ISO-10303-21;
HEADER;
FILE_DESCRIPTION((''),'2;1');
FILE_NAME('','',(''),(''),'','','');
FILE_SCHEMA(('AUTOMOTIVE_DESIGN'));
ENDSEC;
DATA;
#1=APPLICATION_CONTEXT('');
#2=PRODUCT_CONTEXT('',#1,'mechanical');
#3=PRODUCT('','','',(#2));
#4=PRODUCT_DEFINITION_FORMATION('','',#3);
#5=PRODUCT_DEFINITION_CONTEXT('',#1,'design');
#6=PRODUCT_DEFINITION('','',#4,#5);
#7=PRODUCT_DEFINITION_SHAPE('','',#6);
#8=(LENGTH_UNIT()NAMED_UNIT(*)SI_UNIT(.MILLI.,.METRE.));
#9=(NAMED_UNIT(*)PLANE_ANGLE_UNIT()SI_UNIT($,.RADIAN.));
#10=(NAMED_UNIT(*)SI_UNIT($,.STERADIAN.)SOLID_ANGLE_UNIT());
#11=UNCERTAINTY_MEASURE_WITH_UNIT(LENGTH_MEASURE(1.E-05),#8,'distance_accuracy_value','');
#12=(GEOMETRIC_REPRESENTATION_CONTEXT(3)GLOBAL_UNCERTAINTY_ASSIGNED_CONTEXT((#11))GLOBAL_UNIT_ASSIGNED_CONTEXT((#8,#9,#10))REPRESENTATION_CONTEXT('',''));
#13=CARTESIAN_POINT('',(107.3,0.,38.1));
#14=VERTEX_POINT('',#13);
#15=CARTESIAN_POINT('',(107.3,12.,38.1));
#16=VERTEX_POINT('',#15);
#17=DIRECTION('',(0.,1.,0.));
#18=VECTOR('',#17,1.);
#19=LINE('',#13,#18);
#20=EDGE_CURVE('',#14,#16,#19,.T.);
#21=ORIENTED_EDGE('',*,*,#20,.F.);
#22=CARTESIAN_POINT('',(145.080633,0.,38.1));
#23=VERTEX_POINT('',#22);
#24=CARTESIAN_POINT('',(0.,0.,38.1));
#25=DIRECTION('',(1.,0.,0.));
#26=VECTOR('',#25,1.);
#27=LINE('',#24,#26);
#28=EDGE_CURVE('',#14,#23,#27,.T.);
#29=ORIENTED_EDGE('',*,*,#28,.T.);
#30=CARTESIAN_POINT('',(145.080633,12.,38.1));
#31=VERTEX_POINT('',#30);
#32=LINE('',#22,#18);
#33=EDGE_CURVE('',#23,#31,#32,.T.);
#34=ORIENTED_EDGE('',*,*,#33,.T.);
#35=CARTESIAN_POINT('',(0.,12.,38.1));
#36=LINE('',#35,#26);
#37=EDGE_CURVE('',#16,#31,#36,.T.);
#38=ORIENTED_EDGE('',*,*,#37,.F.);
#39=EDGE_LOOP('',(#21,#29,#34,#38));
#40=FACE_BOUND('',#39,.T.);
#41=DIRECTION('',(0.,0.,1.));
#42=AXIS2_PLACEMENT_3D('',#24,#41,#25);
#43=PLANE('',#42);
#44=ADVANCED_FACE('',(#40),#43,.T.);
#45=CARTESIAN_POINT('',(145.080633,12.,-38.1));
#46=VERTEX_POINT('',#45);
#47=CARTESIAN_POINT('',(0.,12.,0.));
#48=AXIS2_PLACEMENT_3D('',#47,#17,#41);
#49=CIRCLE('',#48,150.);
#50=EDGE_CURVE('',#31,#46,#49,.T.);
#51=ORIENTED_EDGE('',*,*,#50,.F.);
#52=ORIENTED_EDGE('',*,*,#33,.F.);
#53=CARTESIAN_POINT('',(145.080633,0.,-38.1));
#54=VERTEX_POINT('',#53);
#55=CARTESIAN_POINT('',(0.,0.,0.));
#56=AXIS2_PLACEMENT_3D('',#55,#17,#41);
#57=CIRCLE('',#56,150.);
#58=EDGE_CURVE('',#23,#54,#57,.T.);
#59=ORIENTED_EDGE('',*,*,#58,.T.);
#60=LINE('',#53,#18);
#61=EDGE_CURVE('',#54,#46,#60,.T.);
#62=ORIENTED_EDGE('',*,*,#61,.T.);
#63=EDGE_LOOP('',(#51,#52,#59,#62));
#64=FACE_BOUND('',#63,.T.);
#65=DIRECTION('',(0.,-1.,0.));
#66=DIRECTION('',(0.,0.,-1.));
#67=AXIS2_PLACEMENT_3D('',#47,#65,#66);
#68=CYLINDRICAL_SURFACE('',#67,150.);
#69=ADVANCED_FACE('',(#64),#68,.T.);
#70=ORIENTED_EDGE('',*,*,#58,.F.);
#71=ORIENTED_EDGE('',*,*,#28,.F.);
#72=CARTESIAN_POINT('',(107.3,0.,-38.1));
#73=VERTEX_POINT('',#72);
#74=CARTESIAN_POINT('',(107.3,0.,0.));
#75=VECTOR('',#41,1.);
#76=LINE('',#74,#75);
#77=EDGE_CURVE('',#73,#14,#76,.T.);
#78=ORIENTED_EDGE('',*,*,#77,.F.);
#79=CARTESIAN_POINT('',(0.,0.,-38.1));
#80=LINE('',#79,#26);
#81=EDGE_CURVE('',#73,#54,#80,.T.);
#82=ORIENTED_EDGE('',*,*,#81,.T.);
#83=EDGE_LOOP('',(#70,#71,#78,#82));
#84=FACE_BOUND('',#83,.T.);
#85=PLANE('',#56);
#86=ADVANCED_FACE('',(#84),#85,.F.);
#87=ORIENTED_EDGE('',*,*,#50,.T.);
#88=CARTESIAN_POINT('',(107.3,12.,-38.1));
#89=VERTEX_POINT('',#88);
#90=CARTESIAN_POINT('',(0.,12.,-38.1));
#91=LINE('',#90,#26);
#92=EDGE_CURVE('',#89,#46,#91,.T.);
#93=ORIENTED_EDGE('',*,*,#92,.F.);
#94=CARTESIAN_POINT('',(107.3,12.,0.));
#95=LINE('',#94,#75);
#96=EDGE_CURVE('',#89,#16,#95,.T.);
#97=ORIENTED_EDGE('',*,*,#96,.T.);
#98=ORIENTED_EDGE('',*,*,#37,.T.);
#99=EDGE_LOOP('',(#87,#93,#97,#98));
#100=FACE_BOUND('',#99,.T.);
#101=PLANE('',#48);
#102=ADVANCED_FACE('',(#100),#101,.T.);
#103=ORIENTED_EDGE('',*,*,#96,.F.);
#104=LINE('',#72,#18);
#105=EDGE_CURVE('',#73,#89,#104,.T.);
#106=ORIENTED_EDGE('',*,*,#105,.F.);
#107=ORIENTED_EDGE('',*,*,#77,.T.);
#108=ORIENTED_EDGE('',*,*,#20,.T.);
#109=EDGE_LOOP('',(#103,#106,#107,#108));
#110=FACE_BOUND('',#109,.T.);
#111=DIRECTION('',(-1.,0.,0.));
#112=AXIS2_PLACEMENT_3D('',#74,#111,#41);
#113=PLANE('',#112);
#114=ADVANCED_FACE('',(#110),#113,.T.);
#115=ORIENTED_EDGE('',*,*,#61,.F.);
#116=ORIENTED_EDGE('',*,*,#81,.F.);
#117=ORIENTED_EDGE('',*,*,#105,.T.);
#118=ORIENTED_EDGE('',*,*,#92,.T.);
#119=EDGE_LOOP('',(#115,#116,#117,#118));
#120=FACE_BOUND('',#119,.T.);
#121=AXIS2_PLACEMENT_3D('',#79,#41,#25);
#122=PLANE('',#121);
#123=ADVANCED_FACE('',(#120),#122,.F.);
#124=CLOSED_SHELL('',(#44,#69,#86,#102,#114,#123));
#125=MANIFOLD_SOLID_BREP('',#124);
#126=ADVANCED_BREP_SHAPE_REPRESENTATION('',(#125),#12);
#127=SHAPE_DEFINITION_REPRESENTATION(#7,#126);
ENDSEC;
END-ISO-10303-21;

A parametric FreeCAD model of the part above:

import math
import FreeCAD as App
import Part
import Sketcher

V = App.Vector
Q = App.Units.Quantity

doc = App.newDocument("Part")
body = doc.addObject("PartDesign::Body", "Body")

sketch1 = body.newObject("Sketcher::SketchObject", "Sketch")
sketch1.AttachmentSupport = (doc.getObject("XZ_Plane"), [""])
sketch1.MapMode = "FlatFace"
sketch1.addGeometry(Part.LineSegment(V(130, -75, 0), V(67, -39, 0)), False)
sketch1.addGeometry(Part.ArcOfCircle(Part.Circle(V(62, -47, 0), V(0, 0, 1), 10), math.radians(60), math.radians(90)), False)
sketch1.addGeometry(Part.LineSegment(V(62, -38, 0), V(-45, -38, 0)), False)
sketch1.addGeometry(Part.ArcOfCircle(Part.Circle(V(-45, -28, 0), V(0, 0, 1), 10), math.radians(180), math.radians(270)), False)
sketch1.addGeometry(Part.LineSegment(V(-55, -28, 0), V(-55, 28, 0)), False)
sketch1.addGeometry(Part.ArcOfCircle(Part.Circle(V(-45, 28, 0), V(0, 0, 1), 10), math.radians(90), math.radians(180)), False)
sketch1.addGeometry(Part.LineSegment(V(-45, 38, 0), V(62, 38, 0)), False)
sketch1.addGeometry(Part.ArcOfCircle(Part.Circle(V(62, 47, 0), V(0, 0, 1), 10), math.radians(-90), math.radians(-60)), False)
sketch1.addGeometry(Part.LineSegment(V(67, 39, 0), V(130, 75, 0)), False)
sketch1.addGeometry(Part.ArcOfCircle(Part.Circle(V(0, 0, 0), V(0, 0, 1), 150), math.radians(-30), math.radians(30)), False)
sketch1.addGeometry(Part.Circle(V(50, 0, 0), V(0, 0, 1), 5), False)
sketch1.addGeometry(Part.Circle(V(30, 0, 0), V(0, 0, 1), 5), False)
sketch1.addGeometry(Part.Circle(V(0, 0, 0), V(0, 0, 1), 15), False)
sketch1.addGeometry(Part.Circle(V(-30, 0, 0), V(0, 0, 1), 5), False)
sketch1.addConstraint(Sketcher.Constraint("Tangent", 0, 2, 1, 1))
sketch1.addConstraint(Sketcher.Constraint("Tangent", 1, 2, 2, 1))
sketch1.addConstraint(Sketcher.Constraint("Tangent", 2, 2, 3, 2))
sketch1.addConstraint(Sketcher.Constraint("Tangent", 3, 1, 4, 1))
sketch1.addConstraint(Sketcher.Constraint("Tangent", 4, 2, 5, 2))
sketch1.addConstraint(Sketcher.Constraint("Tangent", 5, 1, 6, 1))
sketch1.addConstraint(Sketcher.Constraint("Tangent", 6, 2, 7, 1))
sketch1.addConstraint(Sketcher.Constraint("Tangent", 7, 2, 8, 1))
sketch1.addConstraint(Sketcher.Constraint("Coincident", 8, 2, 9, 2))
sketch1.addConstraint(Sketcher.Constraint("Coincident", 9, 1, 0, 1))
sketch1.addConstraint(Sketcher.Constraint("Horizontal", 2))
sketch1.addConstraint(Sketcher.Constraint("Vertical", 4))
sketch1.addConstraint(Sketcher.Constraint("Horizontal", 6))
sketch1.addConstraint(Sketcher.Constraint("Coincident", 9, 3, -1, 1))
sketch1.addConstraint(Sketcher.Constraint("Coincident", 12, 3, -1, 1))
sketch1.addConstraint(Sketcher.Constraint("Equal", 1, 3))
sketch1.addConstraint(Sketcher.Constraint("Equal", 3, 5))
sketch1.addConstraint(Sketcher.Constraint("Equal", 5, 7))
sketch1.addConstraint(Sketcher.Constraint("Equal", 10, 11))
sketch1.addConstraint(Sketcher.Constraint("Equal", 11, 13))
sketch1.addConstraint(Sketcher.Constraint("Symmetric", 11, 3, 13, 3, -1, 1))
sketch1.addConstraint(Sketcher.Constraint("Symmetric", 1, 3, 7, 3, -1))
sketch1.addConstraint(Sketcher.Constraint("PointOnObject", 10, 3, -1))
sketch1.addConstraint(Sketcher.Constraint("PointOnObject", 11, 3, -1))
sketch1.addConstraint(Sketcher.Constraint("Vertical", 0, 2, 7, 2))
sketch1.addConstraint(Sketcher.Constraint("Diameter", 10, Q("10 mm")))
sketch1.addConstraint(Sketcher.Constraint("Diameter", 12, Q("30 mm")))
sketch1.addConstraint(Sketcher.Constraint("Radius", 1, Q("10 mm")))
sketch1.addConstraint(Sketcher.Constraint("Radius", 9, Q("150 mm")))
sketch1.addConstraint(Sketcher.Constraint("DistanceY", 4, 1, 4, 2, Q("55 mm")))
sketch1.addConstraint(Sketcher.Constraint("Angle", 0, Q("150 deg")))
sketch1.addConstraint(Sketcher.Constraint("DistanceX", -1, 1, 10, 3, Q("50 mm")))
sketch1.addConstraint(Sketcher.Constraint("DistanceX", -1, 1, 11, 3, Q("30 mm")))
sketch1.addConstraint(Sketcher.Constraint("DistanceY", -1, 1, 8, 2, Q("75 mm")))
sketch1.addConstraint(Sketcher.Constraint("DistanceX", 2, 2, 2, 1, Q("107.320508 mm")))
pad1 = body.newObject("PartDesign::Pad", "Pad")
pad1.Profile = sketch1
pad1.Length = 12
pad1.Reversed = True

sketch2 = body.newObject("Sketcher::SketchObject", "Sketch001")
sketch2.AttachmentSupport = (doc.getObject("XZ_Plane"), [""])
sketch2.MapMode = "FlatFace"
sketch2.AttachmentOffset = App.Placement(V(0, 0, -12), App.Rotation())
sketch2.addGeometry(Part.LineSegment(V(107, 38, 0), V(107, -38, 0)), False)
sketch2.addGeometry(Part.LineSegment(V(107, -38, 0), V(145, -38, 0)), False)
sketch2.addGeometry(Part.ArcOfCircle(Part.Circle(V(0, 0, 0), V(0, 0, 1), 150), math.radians(-30), math.radians(-14.71)), False)
sketch2.addGeometry(Part.LineSegment(V(130, -75, 0), V(67, -39, 0)), False)
sketch2.addGeometry(Part.ArcOfCircle(Part.Circle(V(62, -47, 0), V(0, 0, 1), 10), math.radians(60), math.radians(90)), False)
sketch2.addGeometry(Part.LineSegment(V(62, -38, 0), V(-45, -38, 0)), False)
sketch2.addGeometry(Part.ArcOfCircle(Part.Circle(V(-45, -28, 0), V(0, 0, 1), 10), math.radians(180), math.radians(270)), False)
sketch2.addGeometry(Part.LineSegment(V(-55, -28, 0), V(-55, 28, 0)), False)
sketch2.addGeometry(Part.ArcOfCircle(Part.Circle(V(-45, 28, 0), V(0, 0, 1), 10), math.radians(90), math.radians(180)), False)
sketch2.addGeometry(Part.LineSegment(V(-45, 38, 0), V(62, 38, 0)), False)
sketch2.addGeometry(Part.ArcOfCircle(Part.Circle(V(62, 47, 0), V(0, 0, 1), 10), math.radians(-90), math.radians(-60)), False)
sketch2.addGeometry(Part.LineSegment(V(67, 39, 0), V(130, 75, 0)), False)
sketch2.addGeometry(Part.ArcOfCircle(Part.Circle(V(0, 0, 0), V(0, 0, 1), 150), math.radians(14.71), math.radians(30)), False)
sketch2.addGeometry(Part.LineSegment(V(145, 38, 0), V(107, 38, 0)), False)
sketch2.addGeometry(Part.Circle(V(-30, 0, 0), V(0, 0, 1), 5), False)
sketch2.addGeometry(Part.Circle(V(0, 0, 0), V(0, 0, 1), 15), False)
sketch2.addGeometry(Part.Circle(V(30, 0, 0), V(0, 0, 1), 5), False)
sketch2.addGeometry(Part.Circle(V(50, 0, 0), V(0, 0, 1), 5), False)
sketch2.addConstraint(Sketcher.Constraint("Coincident", 0, 2, 1, 1))
sketch2.addConstraint(Sketcher.Constraint("Coincident", 1, 2, 2, 2))
sketch2.addConstraint(Sketcher.Constraint("Coincident", 2, 1, 3, 1))
sketch2.addConstraint(Sketcher.Constraint("Tangent", 3, 2, 4, 1))
sketch2.addConstraint(Sketcher.Constraint("Tangent", 4, 2, 5, 1))
sketch2.addConstraint(Sketcher.Constraint("Tangent", 5, 2, 6, 2))
sketch2.addConstraint(Sketcher.Constraint("Tangent", 6, 1, 7, 1))
sketch2.addConstraint(Sketcher.Constraint("Tangent", 7, 2, 8, 2))
sketch2.addConstraint(Sketcher.Constraint("Tangent", 8, 1, 9, 1))
sketch2.addConstraint(Sketcher.Constraint("Tangent", 9, 2, 10, 1))
sketch2.addConstraint(Sketcher.Constraint("Tangent", 10, 2, 11, 1))
sketch2.addConstraint(Sketcher.Constraint("Coincident", 11, 2, 12, 2))
sketch2.addConstraint(Sketcher.Constraint("Coincident", 12, 1, 13, 1))
sketch2.addConstraint(Sketcher.Constraint("Coincident", 13, 2, 0, 1))
sketch2.addConstraint(Sketcher.Constraint("Vertical", 0))
sketch2.addConstraint(Sketcher.Constraint("Horizontal", 1))
sketch2.addConstraint(Sketcher.Constraint("Horizontal", 5))
sketch2.addConstraint(Sketcher.Constraint("Vertical", 7))
sketch2.addConstraint(Sketcher.Constraint("Horizontal", 9))
sketch2.addConstraint(Sketcher.Constraint("Horizontal", 13))
sketch2.addConstraint(Sketcher.Constraint("Coincident", 2, 3, -1, 1))
sketch2.addConstraint(Sketcher.Constraint("Coincident", 12, 3, -1, 1))
sketch2.addConstraint(Sketcher.Constraint("Coincident", 15, 3, -1, 1))
sketch2.addConstraint(Sketcher.Constraint("Equal", 4, 6))
sketch2.addConstraint(Sketcher.Constraint("Equal", 6, 8))
sketch2.addConstraint(Sketcher.Constraint("Equal", 8, 10))
sketch2.addConstraint(Sketcher.Constraint("Equal", 2, 12))
sketch2.addConstraint(Sketcher.Constraint("Equal", 14, 16))
sketch2.addConstraint(Sketcher.Constraint("Equal", 16, 17))
sketch2.addConstraint(Sketcher.Constraint("Symmetric", 14, 3, 16, 3, -1, 1))
sketch2.addConstraint(Sketcher.Constraint("Symmetric", 4, 3, 10, 3, -1))
sketch2.addConstraint(Sketcher.Constraint("PointOnObject", 14, 3, -1))
sketch2.addConstraint(Sketcher.Constraint("PointOnObject", 17, 3, -1))
sketch2.addConstraint(Sketcher.Constraint("Vertical", 3, 2, 10, 2))
sketch2.addConstraint(Sketcher.Constraint("Vertical", 1, 2, 12, 1))
sketch2.addConstraint(Sketcher.Constraint("Diameter", 14, Q("10 mm")))
sketch2.addConstraint(Sketcher.Constraint("Diameter", 15, Q("30 mm")))
sketch2.addConstraint(Sketcher.Constraint("Radius", 2, Q("150 mm")))
sketch2.addConstraint(Sketcher.Constraint("Radius", 4, Q("10 mm")))
sketch2.addConstraint(Sketcher.Constraint("DistanceY", 7, 1, 7, 2, Q("55 mm")))
sketch2.addConstraint(Sketcher.Constraint("Angle", 3, Q("150 deg")))
sketch2.addConstraint(Sketcher.Constraint("DistanceY", 0, 2, 0, 1, Q("76.2 mm")))
sketch2.addConstraint(Sketcher.Constraint("DistanceX", 14, 3, -1, 1, Q("30 mm")))
sketch2.addConstraint(Sketcher.Constraint("DistanceX", -1, 1, 17, 3, Q("50 mm")))
sketch2.addConstraint(Sketcher.Constraint("DistanceY", -1, 1, 11, 2, Q("75 mm")))
sketch2.addConstraint(Sketcher.Constraint("DistanceX", -1, 1, 0, 2, Q("107.3 mm")))
sketch2.addConstraint(Sketcher.Constraint("DistanceX", 5, 2, 5, 1, Q("107.320508 mm")))
pocket1 = body.newObject("PartDesign::Pocket", "Pocket")
pocket1.Profile = sketch2
pocket1.Type = "ThroughAll"
pocket1.Reversed = True

doc.recompute()
